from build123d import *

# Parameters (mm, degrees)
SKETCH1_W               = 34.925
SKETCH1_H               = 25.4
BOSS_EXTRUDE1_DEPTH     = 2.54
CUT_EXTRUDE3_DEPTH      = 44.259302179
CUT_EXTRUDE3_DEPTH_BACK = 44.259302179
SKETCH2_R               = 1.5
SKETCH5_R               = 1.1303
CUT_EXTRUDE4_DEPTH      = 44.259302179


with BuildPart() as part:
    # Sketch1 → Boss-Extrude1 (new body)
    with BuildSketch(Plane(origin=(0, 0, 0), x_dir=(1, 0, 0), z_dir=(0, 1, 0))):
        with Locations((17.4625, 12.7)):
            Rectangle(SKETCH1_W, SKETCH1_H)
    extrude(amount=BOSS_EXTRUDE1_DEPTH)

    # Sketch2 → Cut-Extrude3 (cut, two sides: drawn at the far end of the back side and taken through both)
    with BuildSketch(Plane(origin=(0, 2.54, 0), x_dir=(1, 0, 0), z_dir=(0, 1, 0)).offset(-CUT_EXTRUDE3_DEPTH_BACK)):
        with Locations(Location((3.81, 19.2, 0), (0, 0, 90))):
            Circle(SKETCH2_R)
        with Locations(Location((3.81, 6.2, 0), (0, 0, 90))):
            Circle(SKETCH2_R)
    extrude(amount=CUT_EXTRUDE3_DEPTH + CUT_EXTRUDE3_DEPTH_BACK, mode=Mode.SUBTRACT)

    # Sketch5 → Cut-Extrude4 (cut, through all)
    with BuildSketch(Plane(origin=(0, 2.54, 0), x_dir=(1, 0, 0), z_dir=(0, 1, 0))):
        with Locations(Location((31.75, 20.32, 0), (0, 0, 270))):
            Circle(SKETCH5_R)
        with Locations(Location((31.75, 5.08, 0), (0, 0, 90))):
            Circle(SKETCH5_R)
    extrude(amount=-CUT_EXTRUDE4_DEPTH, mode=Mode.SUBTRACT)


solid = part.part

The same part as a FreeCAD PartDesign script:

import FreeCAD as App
import Part
import Sketcher
Q = App.Units.Quantity


def add_polygon(sketch, points):
    """Adds a closed chain of lines whose ends are joined by coincident constraints."""
    first, n = sketch.GeometryCount, len(points)
    for a, b in zip(points, points[1:] + points[:1]):
        sketch.addGeometry(Part.LineSegment(App.Vector(*a, 0), App.Vector(*b, 0)), False)
    for i in range(n):
        sketch.addConstraint(Sketcher.Constraint("Coincident", first + i, 2, first + (i + 1) % n, 1))

doc = App.newDocument("Part")
body = doc.addObject("PartDesign::Body", "Body")

# Sketch on XZ plane
sketch1 = body.newObject("Sketcher::SketchObject", "Sketch")
sketch1.AttachmentSupport = (doc.getObject("XZ_Plane"), [""])
sketch1.MapMode = "FlatFace"
add_polygon(sketch1, [(0, -25), (0, 0), (35, 0), (35, -25)])  # lines 0-3
sketch1.addConstraint(Sketcher.Constraint("Vertical", 0))
sketch1.addConstraint(Sketcher.Constraint("Horizontal", 1))
sketch1.addConstraint(Sketcher.Constraint("Vertical", 2))
sketch1.addConstraint(Sketcher.Constraint("Horizontal", 3))
sketch1.addConstraint(Sketcher.Constraint("Coincident", 0, 2, -1, 1))
sketch1.addConstraint(Sketcher.Constraint("DistanceY", 0, 1, 0, 2, Q("1 in")))
sketch1.addConstraint(Sketcher.Constraint("DistanceX", 1, 1, 1, 2, Q("1.375 in")))
pad1 = body.newObject("PartDesign::Pad", "Pad")
pad1.Profile = sketch1
pad1.Length = Q("0.1 in")
pad1.Reversed = True

# Sketch on XZ plane
sketch2 = body.newObject("Sketcher::SketchObject", "Sketch001")
sketch2.AttachmentSupport = (doc.getObject("XZ_Plane"), [""])
sketch2.MapMode = "FlatFace"
sketch2.AttachmentOffset = App.Placement(App.Vector(0, 0, -0.1 * 25.4), App.Rotation())
sketch2.addGeometry(Part.Circle(App.Vector(3.8, -19.2, 0), App.Vector(0, 0, 1), 1.5), False)
sketch2.addGeometry(Part.Circle(App.Vector(3.8, -6.2, 0), App.Vector(0, 0, 1), 1.5), False)
sketch2.addConstraint(Sketcher.Constraint("Equal", 0, 1))
sketch2.addConstraint(Sketcher.Constraint("Vertical", 0, 3, 1, 3))
sketch2.addConstraint(Sketcher.Constraint("Diameter", 0, Q("3 mm")))
sketch2.addConstraint(Sketcher.Constraint("DistanceX", -1, 1, 0, 3, Q("0.15 in")))
sketch2.addConstraint(Sketcher.Constraint("DistanceY", 0, 3, -1, 1, Q("19.2 mm")))
sketch2.addConstraint(Sketcher.Constraint("DistanceY", 1, 3, -1, 1, Q("6.2 mm")))
pocket1 = body.newObject("PartDesign::Pocket", "Pocket")
pocket1.Profile = sketch2
pocket1.Type = "ThroughAll"
pocket1.Midplane = True

# Sketch on XZ plane
sketch3 = body.newObject("Sketcher::SketchObject", "Sketch002")
sketch3.AttachmentSupport = (doc.getObject("XZ_Plane"), [""])
sketch3.MapMode = "FlatFace"
sketch3.AttachmentOffset = App.Placement(App.Vector(0, 0, -0.1 * 25.4), App.Rotation())
sketch3.addGeometry(Part.Circle(App.Vector(31.8, -20.3, 0), App.Vector(0, 0, 1), 1.1), False)
sketch3.addGeometry(Part.Circle(App.Vector(31.8, -5.1, 0), App.Vector(0, 0, 1), 1.1), False)
sketch3.addConstraint(Sketcher.Constraint("Equal", 0, 1))
sketch3.addConstraint(Sketcher.Constraint("Vertical", 0, 3, 1, 3))
sketch3.addConstraint(Sketcher.Constraint("Diameter", 0, Q("0.089 in")))
sketch3.addConstraint(Sketcher.Constraint("DistanceY", 0, 3, -1, 1, Q("0.8 in")))
sketch3.addConstraint(Sketcher.Constraint("DistanceY", 1, 3, -1, 1, Q("0.2 in")))
sketch3.addConstraint(Sketcher.Constraint("DistanceX", -1, 1, 0, 3, Q("1.25 in")))
pocket2 = body.newObject("PartDesign::Pocket", "Pocket001")
pocket2.Profile = sketch3
pocket2.Type = "ThroughAll"
pocket2.Reversed = True

doc.recompute()
